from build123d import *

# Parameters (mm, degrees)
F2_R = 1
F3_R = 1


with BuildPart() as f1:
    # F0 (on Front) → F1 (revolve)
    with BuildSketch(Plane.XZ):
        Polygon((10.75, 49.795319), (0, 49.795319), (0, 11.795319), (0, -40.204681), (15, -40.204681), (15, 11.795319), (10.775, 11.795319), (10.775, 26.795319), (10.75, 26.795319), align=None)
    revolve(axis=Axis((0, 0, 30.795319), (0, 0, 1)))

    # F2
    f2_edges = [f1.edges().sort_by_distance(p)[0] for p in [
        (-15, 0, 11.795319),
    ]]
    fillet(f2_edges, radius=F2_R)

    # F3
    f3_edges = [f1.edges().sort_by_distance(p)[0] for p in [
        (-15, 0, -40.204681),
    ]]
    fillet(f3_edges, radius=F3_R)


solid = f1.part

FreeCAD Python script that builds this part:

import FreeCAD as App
import Part
import Sketcher
Q = App.Units.Quantity


def edges_at(feature, points):
    """Names of the edges that pass closest to the given points."""
    edges = feature.Shape.Edges
    near = lambda p: min(range(len(edges)), key=lambda i: edges[i].distToShape(Part.Vertex(*p))[0])
    return sorted({f"Edge{near(p) + 1}" for p in points})

doc = App.newDocument("Part")
body = doc.addObject("PartDesign::Body", "Body")

sketch1 = body.newObject("Sketcher::SketchObject", "Sketch")
sketch1.AttachmentSupport = (doc.getObject("XZ_Plane"), [""])
sketch1.MapMode = "FlatFace"
sketch1.addGeometry([
    Part.LineSegment(App.Vector(10.75, 49.795, 0), App.Vector(0, 49.795, 0)),
    Part.LineSegment(App.Vector(0, 49.795, 0), App.Vector(0, -40.205, 0)),
    Part.LineSegment(App.Vector(0, -40.205, 0), App.Vector(15, -40.205, 0)),
    Part.LineSegment(App.Vector(15, -40.205, 0), App.Vector(15, 11.795, 0)),
    Part.LineSegment(App.Vector(15, 11.795, 0), App.Vector(10.775, 11.795, 0)),
    Part.LineSegment(App.Vector(10.775, 11.795, 0), App.Vector(10.775, 26.795, 0)),
    Part.LineSegment(App.Vector(10.775, 26.795, 0), App.Vector(10.75, 26.795, 0)),
    Part.LineSegment(App.Vector(10.75, 26.795, 0), App.Vector(10.75, 49.795, 0)),
], False)
sketch1.addConstraint([
    Sketcher.Constraint("Coincident", 0, 2, 1, 1),
    Sketcher.Constraint("Coincident", 1, 2, 2, 1),
    Sketcher.Constraint("Coincident", 2, 2, 3, 1),
    Sketcher.Constraint("Coincident", 3, 2, 4, 1),
    Sketcher.Constraint("Coincident", 4, 2, 5, 1),
    Sketcher.Constraint("Coincident", 5, 2, 6, 1),
    Sketcher.Constraint("Coincident", 6, 2, 7, 1),
    Sketcher.Constraint("Coincident", 7, 2, 0, 1),
    Sketcher.Constraint("Horizontal", 0),
    Sketcher.Constraint("Vertical", 1),
    Sketcher.Constraint("Horizontal", 2),
    Sketcher.Constraint("Vertical", 3),
    Sketcher.Constraint("Horizontal", 4),
    Sketcher.Constraint("Vertical", 5),
    Sketcher.Constraint("Horizontal", 6),
    Sketcher.Constraint("Vertical", 7),
    Sketcher.Constraint("PointOnObject", 0, 2, -2),
    Sketcher.Constraint("Equal", 2, 5),
    Sketcher.Constraint("DistanceX", 2, 1, 2, 2, Q("15 mm")),
    Sketcher.Constraint("DistanceY", 1, 2, 1, 1, Q("90 mm")),
    Sketcher.Constraint("DistanceY", 3, 1, 3, 2, Q("52 mm")),
    Sketcher.Constraint("DistanceX", 0, 2, 0, 1, Q("10.75 mm")),
    Sketcher.Constraint("DistanceX", 4, 2, 4, 1, Q("4.225 mm")),
    Sketcher.Constraint("DistanceY", -1, 1, 0, 2, Q("49.795319 mm")),
])
revolution = body.newObject("PartDesign::Revolution", "Revolution")
revolution.Profile = sketch1
revolution.ReferenceAxis = (sketch1, ["V_Axis"])
revolution.Angle = 360
doc.recompute()

fillet = body.newObject("PartDesign::Fillet", "Fillet")
fillet.Base = (revolution, edges_at(revolution, [(-15, 0, 11.795)]))
fillet.Radius = 1
doc.recompute()

fillet2 = body.newObject("PartDesign::Fillet", "Fillet001")
fillet2.Base = (fillet, edges_at(fillet, [(-15, 0, -40.205)]))
fillet2.Radius = 1

doc.recompute()
